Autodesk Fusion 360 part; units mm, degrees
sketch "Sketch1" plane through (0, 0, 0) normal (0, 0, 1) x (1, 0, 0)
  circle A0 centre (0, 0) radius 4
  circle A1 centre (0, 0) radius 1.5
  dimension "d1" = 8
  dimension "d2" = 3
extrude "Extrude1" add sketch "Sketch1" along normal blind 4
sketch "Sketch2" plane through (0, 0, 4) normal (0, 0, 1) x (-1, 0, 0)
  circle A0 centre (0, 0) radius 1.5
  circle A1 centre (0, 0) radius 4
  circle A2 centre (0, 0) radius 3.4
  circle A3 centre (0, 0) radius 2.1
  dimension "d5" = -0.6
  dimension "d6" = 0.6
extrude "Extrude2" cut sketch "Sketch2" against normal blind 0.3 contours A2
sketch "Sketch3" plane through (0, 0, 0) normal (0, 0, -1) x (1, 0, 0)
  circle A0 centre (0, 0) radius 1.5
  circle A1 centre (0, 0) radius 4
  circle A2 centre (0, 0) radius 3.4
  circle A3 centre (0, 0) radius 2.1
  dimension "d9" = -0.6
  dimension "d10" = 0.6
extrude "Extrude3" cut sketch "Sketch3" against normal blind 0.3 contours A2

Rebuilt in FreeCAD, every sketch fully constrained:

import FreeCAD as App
import Part
import Sketcher
Q = App.Units.Quantity

doc = App.newDocument("Part")
body = doc.addObject("PartDesign::Body", "Body")

# Sketch on XY plane
sketch1 = doc.addObject("Sketcher::SketchObject", "Sketch")
body.addObject(sketch1)
sketch1.AttachmentSupport = (doc.XY_Plane, [""])
sketch1.MapMode = "FlatFace"
sketch1.addGeometry([
    Part.Circle(App.Vector(0, 0, 0), App.Vector(0, 0, 1), 4),
    Part.Circle(App.Vector(0, 0, 0), App.Vector(0, 0, 1), 1.5),
], False)
sketch1.addConstraint([
    Sketcher.Constraint("Coincident", 0, 3, -1, 1),
    Sketcher.Constraint("Coincident", 1, 3, -1, 1),
    Sketcher.Constraint("Diameter", 0, Q("8 mm")),
    Sketcher.Constraint("Diameter", 1, Q("3 mm")),
])
pad1 = doc.addObject("PartDesign::Pad", "Pad")
body.addObject(pad1)
pad1.Profile = sketch1
pad1.Length = 4

# Sketch on XY plane
sketch2 = doc.addObject("Sketcher::SketchObject", "Sketch001")
body.addObject(sketch2)
sketch2.AttachmentSupport = (doc.XY_Plane, [""])
sketch2.MapMode = "FlatFace"
sketch2.AttachmentOffset = App.Placement(App.Vector(0, 0, 4), App.Rotation())
sketch2.addGeometry([
    Part.Circle(App.Vector(0, 0, 0), App.Vector(0, 0, 1), 3.4),
    Part.Circle(App.Vector(0, 0, 0), App.Vector(0, 0, 1), 2.1),
], False)
sketch2.addConstraint([
    Sketcher.Constraint("Coincident", 0, 3, -1, 1),
    Sketcher.Constraint("Coincident", 1, 3, -1, 1),
    Sketcher.Constraint("Diameter", 0, Q("6.8 mm")),
    Sketcher.Constraint("Diameter", 1, Q("4.2 mm")),
])
pocket1 = doc.addObject("PartDesign::Pocket", "Pocket")
body.addObject(pocket1)
pocket1.Profile = sketch2
pocket1.Length = 0.3

# Sketch on XY plane
sketch3 = doc.addObject("Sketcher::SketchObject", "Sketch002")
body.addObject(sketch3)
sketch3.AttachmentSupport = (doc.XY_Plane, [""])
sketch3.MapMode = "FlatFace"
sketch3.addGeometry([
    Part.Circle(App.Vector(0, 0, 0), App.Vector(0, 0, 1), 3.4),
    Part.Circle(App.Vector(0, 0, 0), App.Vector(0, 0, 1), 2.1),
], False)
sketch3.addConstraint([
    Sketcher.Constraint("Coincident", 0, 3, -1, 1),
    Sketcher.Constraint("Coincident", 1, 3, -1, 1),
    Sketcher.Constraint("Diameter", 0, Q("6.8 mm")),
    Sketcher.Constraint("Diameter", 1, Q("4.2 mm")),
])
pocket2 = doc.addObject("PartDesign::Pocket", "Pocket001")
body.addObject(pocket2)
pocket2.Profile = sketch3
pocket2.Length = 0.3
pocket2.Reversed = True

doc.recompute()
